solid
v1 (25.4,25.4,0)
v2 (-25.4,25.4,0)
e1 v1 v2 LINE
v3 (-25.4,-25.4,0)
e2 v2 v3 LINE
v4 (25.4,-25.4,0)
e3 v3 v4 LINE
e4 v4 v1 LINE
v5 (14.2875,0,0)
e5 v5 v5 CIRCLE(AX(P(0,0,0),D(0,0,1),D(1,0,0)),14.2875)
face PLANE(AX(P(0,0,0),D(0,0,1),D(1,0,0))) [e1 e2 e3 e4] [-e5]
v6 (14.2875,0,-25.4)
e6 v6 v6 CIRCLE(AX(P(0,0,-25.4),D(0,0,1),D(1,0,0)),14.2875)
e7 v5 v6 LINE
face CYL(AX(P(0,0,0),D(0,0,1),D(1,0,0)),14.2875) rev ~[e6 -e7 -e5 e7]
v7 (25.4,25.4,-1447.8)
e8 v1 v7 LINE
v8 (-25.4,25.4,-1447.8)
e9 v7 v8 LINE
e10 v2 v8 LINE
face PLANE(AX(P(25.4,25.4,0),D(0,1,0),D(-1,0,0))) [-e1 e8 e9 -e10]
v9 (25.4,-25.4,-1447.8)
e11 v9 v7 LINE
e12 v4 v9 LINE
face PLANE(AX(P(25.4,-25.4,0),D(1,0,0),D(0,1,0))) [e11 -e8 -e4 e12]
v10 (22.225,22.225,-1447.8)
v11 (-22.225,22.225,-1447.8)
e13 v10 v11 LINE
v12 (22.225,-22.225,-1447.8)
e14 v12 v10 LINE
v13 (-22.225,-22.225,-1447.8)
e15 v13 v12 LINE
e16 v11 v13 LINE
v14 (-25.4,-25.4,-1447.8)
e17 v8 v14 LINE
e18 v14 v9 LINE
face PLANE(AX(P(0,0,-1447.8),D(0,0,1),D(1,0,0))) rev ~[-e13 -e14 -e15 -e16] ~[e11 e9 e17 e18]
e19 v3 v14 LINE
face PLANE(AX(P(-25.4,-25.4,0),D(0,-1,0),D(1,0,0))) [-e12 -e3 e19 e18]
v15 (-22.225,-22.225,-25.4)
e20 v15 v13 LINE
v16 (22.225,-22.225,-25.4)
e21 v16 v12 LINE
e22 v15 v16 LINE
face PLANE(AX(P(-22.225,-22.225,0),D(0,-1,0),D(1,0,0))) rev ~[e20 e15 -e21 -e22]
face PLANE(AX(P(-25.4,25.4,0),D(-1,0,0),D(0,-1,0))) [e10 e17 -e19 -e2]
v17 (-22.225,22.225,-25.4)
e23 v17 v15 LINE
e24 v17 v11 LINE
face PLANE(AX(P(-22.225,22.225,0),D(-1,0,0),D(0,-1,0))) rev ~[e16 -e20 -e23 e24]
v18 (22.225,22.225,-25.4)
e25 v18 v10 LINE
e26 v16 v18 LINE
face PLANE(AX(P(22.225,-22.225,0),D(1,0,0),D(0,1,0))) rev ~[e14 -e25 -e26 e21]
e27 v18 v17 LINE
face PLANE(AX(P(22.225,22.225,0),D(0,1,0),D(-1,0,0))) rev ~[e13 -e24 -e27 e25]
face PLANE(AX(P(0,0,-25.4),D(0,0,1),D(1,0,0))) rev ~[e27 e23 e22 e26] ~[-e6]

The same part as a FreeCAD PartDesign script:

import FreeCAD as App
import Part
import Sketcher
from FreeCAD import Vector
Q = App.Units.Quantity


def add_polygon(sketch, points):
    """Adds a closed chain of lines whose ends are joined by coincident constraints."""
    first, n = sketch.GeometryCount, len(points)
    for a, b in zip(points, points[1:] + points[:1]):
        sketch.addGeometry(Part.LineSegment(App.Vector(*a, 0), App.Vector(*b, 0)), False)
    for i in range(n):
        sketch.addConstraint(Sketcher.Constraint("Coincident", first + i, 2, first + (i + 1) % n, 1))

doc = App.newDocument("Part")
body = doc.addObject("PartDesign::Body", "Body")

sketch1 = doc.addObject("Sketcher::SketchObject", "Sketch")
body.addObject(sketch1)
sketch1.AttachmentSupport = (doc.XY_Plane, [""])
sketch1.MapMode = "FlatFace"
add_polygon(sketch1, [(-25, 25), (-25, -25), (25, -25), (25, 25)])
add_polygon(sketch1, [(22, -22), (-22, -22), (-22, 22), (22, 22)])
sketch1.addConstraint([
    Sketcher.Constraint("Vertical", 0),
    Sketcher.Constraint("Horizontal", 1),
    Sketcher.Constraint("Vertical", 2),
    Sketcher.Constraint("Horizontal", 3),
    Sketcher.Constraint("Horizontal", 4),
    Sketcher.Constraint("Vertical", 5),
    Sketcher.Constraint("Horizontal", 6),
    Sketcher.Constraint("Vertical", 7),
    Sketcher.Constraint("Symmetric", 0, 2, 2, 2, -1, 1),
    Sketcher.Constraint("Symmetric", 4, 2, 6, 2, -1, 1),
    Sketcher.Constraint("Equal", 3, 0),
    Sketcher.Constraint("Equal", 6, 5),
    Sketcher.Constraint("DistanceX", 1, 1, 1, 2, Q("2 in")),
    Sketcher.Constraint("DistanceX", 0, 2, 4, 2, Q("0.125 in")),
])
pad1 = doc.addObject("PartDesign::Pad", "Pad")
body.addObject(pad1)
pad1.Profile = sketch1
pad1.Length = Q("57 in")
pad1.Reversed = True

sketch2 = doc.addObject("Sketcher::SketchObject", "Sketch001")
body.addObject(sketch2)
sketch2.AttachmentSupport = (doc.XY_Plane, [""])
sketch2.MapMode = "FlatFace"
add_polygon(sketch2, [(-22, 22), (-22, -22), (22, -22), (22, 22)])
sketch2.addGeometry(Part.Circle(Vector(0, 0, 0), Vector(0, 0, 1), 14), False)
sketch2.addConstraint([
    Sketcher.Constraint("Vertical", 0),
    Sketcher.Constraint("Horizontal", 1),
    Sketcher.Constraint("Vertical", 2),
    Sketcher.Constraint("Horizontal", 3),
    Sketcher.Constraint("Coincident", 4, 3, -1, 1),
    Sketcher.Constraint("Symmetric", 0, 2, 2, 2, -1, 1),
    Sketcher.Constraint("Equal", 3, 0),
    Sketcher.Constraint("Diameter", 4, Q("1.125 in")),
    Sketcher.Constraint("DistanceX", 1, 1, 1, 2, Q("1.75 in")),
])
pad2 = doc.addObject("PartDesign::Pad", "Pad001")
body.addObject(pad2)
pad2.Profile = sketch2
pad2.Length = Q("1 in")
pad2.Reversed = True

doc.recompute()
